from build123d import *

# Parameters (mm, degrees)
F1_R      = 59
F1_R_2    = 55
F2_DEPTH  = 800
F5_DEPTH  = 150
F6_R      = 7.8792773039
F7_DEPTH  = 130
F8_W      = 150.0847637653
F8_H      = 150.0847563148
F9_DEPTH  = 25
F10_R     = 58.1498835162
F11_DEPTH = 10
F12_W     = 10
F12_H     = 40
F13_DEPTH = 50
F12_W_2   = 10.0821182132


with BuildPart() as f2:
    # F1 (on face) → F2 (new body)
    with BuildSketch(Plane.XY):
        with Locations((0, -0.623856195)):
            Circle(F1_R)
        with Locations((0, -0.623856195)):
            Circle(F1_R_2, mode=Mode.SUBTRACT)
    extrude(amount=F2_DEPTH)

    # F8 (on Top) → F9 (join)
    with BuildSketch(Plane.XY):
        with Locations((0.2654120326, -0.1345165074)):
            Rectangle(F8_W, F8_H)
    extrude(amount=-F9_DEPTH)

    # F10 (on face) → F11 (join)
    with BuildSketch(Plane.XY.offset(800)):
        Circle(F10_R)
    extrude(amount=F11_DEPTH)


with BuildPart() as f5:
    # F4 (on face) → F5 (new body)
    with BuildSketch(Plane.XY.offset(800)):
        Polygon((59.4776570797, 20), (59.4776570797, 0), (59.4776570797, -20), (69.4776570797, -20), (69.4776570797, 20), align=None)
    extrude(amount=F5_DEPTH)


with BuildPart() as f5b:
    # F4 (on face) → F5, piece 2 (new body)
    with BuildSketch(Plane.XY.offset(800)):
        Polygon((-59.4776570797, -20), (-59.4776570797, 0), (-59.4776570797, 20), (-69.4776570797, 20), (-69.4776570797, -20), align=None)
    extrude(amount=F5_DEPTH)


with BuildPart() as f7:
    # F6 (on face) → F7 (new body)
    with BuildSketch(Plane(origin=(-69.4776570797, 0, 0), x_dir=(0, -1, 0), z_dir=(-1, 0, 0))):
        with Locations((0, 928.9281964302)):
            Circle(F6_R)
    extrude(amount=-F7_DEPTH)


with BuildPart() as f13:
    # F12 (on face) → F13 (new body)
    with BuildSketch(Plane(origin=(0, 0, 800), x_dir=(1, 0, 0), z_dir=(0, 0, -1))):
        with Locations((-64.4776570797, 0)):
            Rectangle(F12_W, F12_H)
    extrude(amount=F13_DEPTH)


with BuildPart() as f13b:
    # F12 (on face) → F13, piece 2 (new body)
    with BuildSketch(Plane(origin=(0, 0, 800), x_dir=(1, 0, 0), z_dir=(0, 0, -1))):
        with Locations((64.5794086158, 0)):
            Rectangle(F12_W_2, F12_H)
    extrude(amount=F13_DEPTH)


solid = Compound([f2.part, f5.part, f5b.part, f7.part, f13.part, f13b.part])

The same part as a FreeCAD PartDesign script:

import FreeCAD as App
import Part
import Sketcher

V = App.Vector

doc = App.newDocument("Part")
body = doc.addObject("PartDesign::Body", "Body")

# Sketch on XY plane
sketch1 = body.newObject("Sketcher::SketchObject", "Sketch")
sketch1.AttachmentSupport = (doc.getObject("XY_Plane"), [""])
sketch1.MapMode = "FlatFace"
sketch1.addGeometry([
    Part.Circle(V(0, -1, 0), V(0, 0, 1), 59),
    Part.Circle(V(0, -1, 0), V(0, 0, 1), 55),
], False)
sketch1.addConstraint([
    Sketcher.Constraint("Coincident", 1, 3, 0, 3),
    Sketcher.Constraint("PointOnObject", 0, 3, -2),
    Sketcher.Constraint("Diameter", 0, 118.0),
    Sketcher.Constraint("Diameter", 1, 110.0),
    Sketcher.Constraint("DistanceY", 0, 3, -1, 1, 0.623856),
])
pad1 = body.newObject("PartDesign::Pad", "Pad")
pad1.Profile = sketch1
pad1.Length = 800

# Sketch on XY plane
sketch2 = body.newObject("Sketcher::SketchObject", "Sketch001")
sketch2.AttachmentSupport = (doc.getObject("XY_Plane"), [""])
sketch2.MapMode = "FlatFace"
sketch2.addGeometry([
    Part.LineSegment(V(-75, 75, 0), V(-75, -75, 0)),
    Part.LineSegment(V(-75, -75, 0), V(75, -75, 0)),
    Part.LineSegment(V(75, -75, 0), V(75, 75, 0)),
    Part.LineSegment(V(75, 75, 0), V(-75, 75, 0)),
], False)
sketch2.addConstraint([
    Sketcher.Constraint("Coincident", 0, 2, 1, 1),
    Sketcher.Constraint("Coincident", 1, 2, 2, 1),
    Sketcher.Constraint("Coincident", 2, 2, 3, 1),
    Sketcher.Constraint("Coincident", 3, 2, 0, 1),
    Sketcher.Constraint("Vertical", 0),
    Sketcher.Constraint("Horizontal", 1),
    Sketcher.Constraint("Vertical", 2),
    Sketcher.Constraint("Horizontal", 3),
    Sketcher.Constraint("DistanceX", 1, 1, 1, 2, 150.084764),
    Sketcher.Constraint("DistanceY", 0, 2, 0, 1, 150.084756),
    Sketcher.Constraint("DistanceX", 0, 2, -1, 1, 74.77697),
    Sketcher.Constraint("DistanceY", -1, 1, 2, 2, 74.907862),
])
pad2 = body.newObject("PartDesign::Pad", "Pad001")
pad2.Profile = sketch2
pad2.Length = 25
pad2.Reversed = True

# Sketch on XY plane
sketch3 = body.newObject("Sketcher::SketchObject", "Sketch002")
sketch3.AttachmentSupport = (doc.getObject("XY_Plane"), [""])
sketch3.MapMode = "FlatFace"
sketch3.AttachmentOffset = App.Placement(V(0, 0, 800), App.Rotation())
sketch3.addGeometry(Part.Circle(V(0, 0, 0), V(0, 0, 1), 58), False)
sketch3.addConstraint([
    Sketcher.Constraint("Coincident", 0, 3, -1, 1),
    Sketcher.Constraint("Diameter", 0, 116.299767),
])
pad3 = body.newObject("PartDesign::Pad", "Pad002")
pad3.Profile = sketch3
pad3.Length = 10
body2 = doc.addObject("PartDesign::Body", "Body001")

# Sketch on XY plane
sketch4 = body2.newObject("Sketcher::SketchObject", "Sketch003")
sketch4.AttachmentSupport = (doc.getObject("XY_Plane001"), [""])
sketch4.MapMode = "FlatFace"
sketch4.AttachmentOffset = App.Placement(V(0, 0, 800), App.Rotation())
sketch4.addGeometry([
    Part.LineSegment(V(59, 20, 0), V(59, -20, 0)),
    Part.LineSegment(V(59, -20, 0), V(69, -20, 0)),
    Part.LineSegment(V(69, -20, 0), V(69, 20, 0)),
    Part.LineSegment(V(69, 20, 0), V(59, 20, 0)),
], False)
sketch4.addConstraint([
    Sketcher.Constraint("Coincident", 0, 2, 1, 1),
    Sketcher.Constraint("Coincident", 1, 2, 2, 1),
    Sketcher.Constraint("Coincident", 2, 2, 3, 1),
    Sketcher.Constraint("Coincident", 3, 2, 0, 1),
    Sketcher.Constraint("Vertical", 0),
    Sketcher.Constraint("Horizontal", 1),
    Sketcher.Constraint("Vertical", 2),
    Sketcher.Constraint("Horizontal", 3),
    Sketcher.Constraint("DistanceX", 1, 1, 1, 2, 10.0),
    Sketcher.Constraint("DistanceY", 0, 2, 0, 1, 40.0),
    Sketcher.Constraint("DistanceY", 0, 2, -1, 1, 20.0),
    Sketcher.Constraint("DistanceX", -1, 1, 0, 2, 59.477657),
])
pad4 = body2.newObject("PartDesign::Pad", "Pad003")
pad4.Profile = sketch4
pad4.Length = 150
body3 = doc.addObject("PartDesign::Body", "Body002")

# Sketch on XY plane
sketch5 = body3.newObject("Sketcher::SketchObject", "Sketch004")
sketch5.AttachmentSupport = (doc.getObject("XY_Plane002"), [""])
sketch5.MapMode = "FlatFace"
sketch5.AttachmentOffset = App.Placement(V(0, 0, 800), App.Rotation())
sketch5.addGeometry([
    Part.LineSegment(V(-59, -20, 0), V(-59, 20, 0)),
    Part.LineSegment(V(-59, 20, 0), V(-69, 20, 0)),
    Part.LineSegment(V(-69, 20, 0), V(-69, -20, 0)),
    Part.LineSegment(V(-69, -20, 0), V(-59, -20, 0)),
], False)
sketch5.addConstraint([
    Sketcher.Constraint("Coincident", 0, 2, 1, 1),
    Sketcher.Constraint("Coincident", 1, 2, 2, 1),
    Sketcher.Constraint("Coincident", 2, 2, 3, 1),
    Sketcher.Constraint("Coincident", 3, 2, 0, 1),
    Sketcher.Constraint("Vertical", 0),
    Sketcher.Constraint("Horizontal", 1),
    Sketcher.Constraint("Vertical", 2),
    Sketcher.Constraint("Horizontal", 3),
    Sketcher.Constraint("DistanceX", 1, 2, 1, 1, 10.0),
    Sketcher.Constraint("DistanceY", 0, 1, 0, 2, 40.0),
    Sketcher.Constraint("DistanceY", -1, 1, 0, 2, 20.0),
    Sketcher.Constraint("DistanceX", 0, 2, -1, 1, 59.477657),
])
pad5 = body3.newObject("PartDesign::Pad", "Pad004")
pad5.Profile = sketch5
pad5.Length = 150
body4 = doc.addObject("PartDesign::Body", "Body003")

# Sketch on YZ plane
sketch6 = body4.newObject("Sketcher::SketchObject", "Sketch005")
sketch6.AttachmentSupport = (doc.getObject("YZ_Plane003"), [""])
sketch6.MapMode = "FlatFace"
sketch6.AttachmentOffset = App.Placement(V(0, 0, -69.477657), App.Rotation())
sketch6.addGeometry(Part.Circle(V(0, 929, 0), V(0, 0, 1), 8), False)
sketch6.addConstraint([
    Sketcher.Constraint("PointOnObject", 0, 3, -2),
    Sketcher.Constraint("Diameter", 0, 15.758555),
    Sketcher.Constraint("DistanceY", -1, 1, 0, 3, 928.928196),
])
pad6 = body4.newObject("PartDesign::Pad", "Pad005")
pad6.Profile = sketch6
pad6.Length = 130
body5 = doc.addObject("PartDesign::Body", "Body004")

# Sketch on XY plane
sketch7 = body5.newObject("Sketcher::SketchObject", "Sketch006")
sketch7.AttachmentSupport = (doc.getObject("XY_Plane004"), [""])
sketch7.MapMode = "FlatFace"
sketch7.AttachmentOffset = App.Placement(V(0, 0, 800), App.Rotation())
sketch7.addGeometry([
    Part.LineSegment(V(-69, -20, 0), V(-69, 20, 0)),
    Part.LineSegment(V(-69, 20, 0), V(-59, 20, 0)),
    Part.LineSegment(V(-59, 20, 0), V(-59, -20, 0)),
    Part.LineSegment(V(-59, -20, 0), V(-69, -20, 0)),
], False)
sketch7.addConstraint([
    Sketcher.Constraint("Coincident", 0, 2, 1, 1),
    Sketcher.Constraint("Coincident", 1, 2, 2, 1),
    Sketcher.Constraint("Coincident", 2, 2, 3, 1),
    Sketcher.Constraint("Coincident", 3, 2, 0, 1),
    Sketcher.Constraint("Vertical", 0),
    Sketcher.Constraint("Horizontal", 1),
    Sketcher.Constraint("Vertical", 2),
    Sketcher.Constraint("Horizontal", 3),
    Sketcher.Constraint("DistanceX", 1, 1, 1, 2, 10.0),
    Sketcher.Constraint("DistanceY", 0, 1, 0, 2, 40.0),
    Sketcher.Constraint("DistanceY", -1, 1, 0, 2, 20.0),
    Sketcher.Constraint("DistanceX", 0, 2, -1, 1, 69.477657),
])
pad7 = body5.newObject("PartDesign::Pad", "Pad006")
pad7.Profile = sketch7
pad7.Length = 50
pad7.Reversed = True
body6 = doc.addObject("PartDesign::Body", "Body005")

# Sketch on XY plane
sketch8 = body6.newObject("Sketcher::SketchObject", "Sketch007")
sketch8.AttachmentSupport = (doc.getObject("XY_Plane005"), [""])
sketch8.MapMode = "FlatFace"
sketch8.AttachmentOffset = App.Placement(V(0, 0, 800), App.Rotation())
sketch8.addGeometry([
    Part.LineSegment(V(60, -20, 0), V(60, 20, 0)),
    Part.LineSegment(V(60, 20, 0), V(70, 20, 0)),
    Part.LineSegment(V(70, 20, 0), V(70, -20, 0)),
    Part.LineSegment(V(70, -20, 0), V(60, -20, 0)),
], False)
sketch8.addConstraint([
    Sketcher.Constraint("Coincident", 0, 2, 1, 1),
    Sketcher.Constraint("Coincident", 1, 2, 2, 1),
    Sketcher.Constraint("Coincident", 2, 2, 3, 1),
    Sketcher.Constraint("Coincident", 3, 2, 0, 1),
    Sketcher.Constraint("Vertical", 0),
    Sketcher.Constraint("Horizontal", 1),
    Sketcher.Constraint("Vertical", 2),
    Sketcher.Constraint("Horizontal", 3),
    Sketcher.Constraint("DistanceY", 0, 1, 0, 2, 40.0),
    Sketcher.Constraint("DistanceY", -1, 1, 0, 2, 20.0),
    Sketcher.Constraint("DistanceX", 1, 1, 1, 2, 10.082118),
    Sketcher.Constraint("DistanceX", -1, 1, 0, 2, 59.53835),
])
pad8 = body6.newObject("PartDesign::Pad", "Pad007")
pad8.Profile = sketch8
pad8.Length = 50
pad8.Reversed = True

doc.recompute()
